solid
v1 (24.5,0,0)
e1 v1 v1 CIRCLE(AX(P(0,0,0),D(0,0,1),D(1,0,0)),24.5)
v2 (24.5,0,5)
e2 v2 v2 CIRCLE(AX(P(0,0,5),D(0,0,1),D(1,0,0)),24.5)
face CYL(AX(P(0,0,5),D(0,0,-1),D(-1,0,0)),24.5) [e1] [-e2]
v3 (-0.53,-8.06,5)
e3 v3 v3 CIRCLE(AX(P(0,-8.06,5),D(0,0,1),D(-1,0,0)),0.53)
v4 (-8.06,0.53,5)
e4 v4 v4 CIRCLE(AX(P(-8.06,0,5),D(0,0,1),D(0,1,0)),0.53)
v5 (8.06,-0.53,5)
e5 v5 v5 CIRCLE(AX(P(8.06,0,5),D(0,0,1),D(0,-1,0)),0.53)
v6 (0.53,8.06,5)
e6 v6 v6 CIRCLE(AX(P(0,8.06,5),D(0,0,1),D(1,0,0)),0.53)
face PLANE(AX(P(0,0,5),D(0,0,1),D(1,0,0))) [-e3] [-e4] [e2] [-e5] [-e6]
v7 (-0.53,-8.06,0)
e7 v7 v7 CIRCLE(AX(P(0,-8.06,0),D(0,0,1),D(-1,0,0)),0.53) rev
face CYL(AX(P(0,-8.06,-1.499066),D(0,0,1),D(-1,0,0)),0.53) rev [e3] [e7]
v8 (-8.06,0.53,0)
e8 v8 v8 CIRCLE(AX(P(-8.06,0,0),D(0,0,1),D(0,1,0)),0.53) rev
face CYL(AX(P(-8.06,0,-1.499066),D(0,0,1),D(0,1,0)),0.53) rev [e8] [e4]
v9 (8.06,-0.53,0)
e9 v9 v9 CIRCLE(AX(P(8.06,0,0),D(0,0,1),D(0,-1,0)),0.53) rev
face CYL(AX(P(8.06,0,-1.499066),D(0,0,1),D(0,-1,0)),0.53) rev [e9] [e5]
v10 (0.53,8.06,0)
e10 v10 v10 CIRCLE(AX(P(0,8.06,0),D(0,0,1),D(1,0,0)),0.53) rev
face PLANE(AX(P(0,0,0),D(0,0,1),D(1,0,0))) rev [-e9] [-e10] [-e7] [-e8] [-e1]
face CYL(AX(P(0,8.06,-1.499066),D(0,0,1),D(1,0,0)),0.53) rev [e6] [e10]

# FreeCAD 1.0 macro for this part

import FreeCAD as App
import Part
import Sketcher

V = App.Vector

doc = App.newDocument("Part")
body = doc.addObject("PartDesign::Body", "Body")

sketch1 = body.newObject("Sketcher::SketchObject", "Sketch")
sketch1.AttachmentSupport = (doc.getObject("XY_Plane"), [""])
sketch1.MapMode = "FlatFace"
sketch1.addGeometry(Part.Circle(V(0, 0, 0), V(0, 0, 1), 24), False)
sketch1.addConstraint([
    Sketcher.Constraint("Coincident", 0, 3, -1, 1),
    Sketcher.Constraint("Diameter", 0, 49.0),
])
pad1 = body.newObject("PartDesign::Pad", "Pad")
pad1.Profile = sketch1
pad1.Length = 5

sketch2 = body.newObject("Sketcher::SketchObject", "Sketch001")
sketch2.AttachmentSupport = (doc.getObject("XY_Plane"), [""])
sketch2.MapMode = "FlatFace"
sketch2.AttachmentOffset = App.Placement(V(0, 0, 5), App.Rotation())
sketch2.addGeometry(Part.Circle(V(0, 8.1, 0), V(0, 0, 1), 0.5), False)
sketch2.addConstraint([
    Sketcher.Constraint("PointOnObject", 0, 3, -2),
    Sketcher.Constraint("Diameter", 0, 1.06),
    Sketcher.Constraint("DistanceY", -1, 1, 0, 3, 8.06),
])
pocket1 = body.newObject("PartDesign::Pocket", "Pocket")
pocket1.Profile = sketch2
pocket1.Length = 5
doc.recompute()

polarpattern = body.newObject("PartDesign::PolarPattern", "PolarPattern")
polarpattern.Originals = [pocket1]
polarpattern.Axis = (doc.getObject("Z_Axis"), [""])
polarpattern.Angle = 360
polarpattern.Occurrences = 4
body.Tip = polarpattern

doc.recompute()
